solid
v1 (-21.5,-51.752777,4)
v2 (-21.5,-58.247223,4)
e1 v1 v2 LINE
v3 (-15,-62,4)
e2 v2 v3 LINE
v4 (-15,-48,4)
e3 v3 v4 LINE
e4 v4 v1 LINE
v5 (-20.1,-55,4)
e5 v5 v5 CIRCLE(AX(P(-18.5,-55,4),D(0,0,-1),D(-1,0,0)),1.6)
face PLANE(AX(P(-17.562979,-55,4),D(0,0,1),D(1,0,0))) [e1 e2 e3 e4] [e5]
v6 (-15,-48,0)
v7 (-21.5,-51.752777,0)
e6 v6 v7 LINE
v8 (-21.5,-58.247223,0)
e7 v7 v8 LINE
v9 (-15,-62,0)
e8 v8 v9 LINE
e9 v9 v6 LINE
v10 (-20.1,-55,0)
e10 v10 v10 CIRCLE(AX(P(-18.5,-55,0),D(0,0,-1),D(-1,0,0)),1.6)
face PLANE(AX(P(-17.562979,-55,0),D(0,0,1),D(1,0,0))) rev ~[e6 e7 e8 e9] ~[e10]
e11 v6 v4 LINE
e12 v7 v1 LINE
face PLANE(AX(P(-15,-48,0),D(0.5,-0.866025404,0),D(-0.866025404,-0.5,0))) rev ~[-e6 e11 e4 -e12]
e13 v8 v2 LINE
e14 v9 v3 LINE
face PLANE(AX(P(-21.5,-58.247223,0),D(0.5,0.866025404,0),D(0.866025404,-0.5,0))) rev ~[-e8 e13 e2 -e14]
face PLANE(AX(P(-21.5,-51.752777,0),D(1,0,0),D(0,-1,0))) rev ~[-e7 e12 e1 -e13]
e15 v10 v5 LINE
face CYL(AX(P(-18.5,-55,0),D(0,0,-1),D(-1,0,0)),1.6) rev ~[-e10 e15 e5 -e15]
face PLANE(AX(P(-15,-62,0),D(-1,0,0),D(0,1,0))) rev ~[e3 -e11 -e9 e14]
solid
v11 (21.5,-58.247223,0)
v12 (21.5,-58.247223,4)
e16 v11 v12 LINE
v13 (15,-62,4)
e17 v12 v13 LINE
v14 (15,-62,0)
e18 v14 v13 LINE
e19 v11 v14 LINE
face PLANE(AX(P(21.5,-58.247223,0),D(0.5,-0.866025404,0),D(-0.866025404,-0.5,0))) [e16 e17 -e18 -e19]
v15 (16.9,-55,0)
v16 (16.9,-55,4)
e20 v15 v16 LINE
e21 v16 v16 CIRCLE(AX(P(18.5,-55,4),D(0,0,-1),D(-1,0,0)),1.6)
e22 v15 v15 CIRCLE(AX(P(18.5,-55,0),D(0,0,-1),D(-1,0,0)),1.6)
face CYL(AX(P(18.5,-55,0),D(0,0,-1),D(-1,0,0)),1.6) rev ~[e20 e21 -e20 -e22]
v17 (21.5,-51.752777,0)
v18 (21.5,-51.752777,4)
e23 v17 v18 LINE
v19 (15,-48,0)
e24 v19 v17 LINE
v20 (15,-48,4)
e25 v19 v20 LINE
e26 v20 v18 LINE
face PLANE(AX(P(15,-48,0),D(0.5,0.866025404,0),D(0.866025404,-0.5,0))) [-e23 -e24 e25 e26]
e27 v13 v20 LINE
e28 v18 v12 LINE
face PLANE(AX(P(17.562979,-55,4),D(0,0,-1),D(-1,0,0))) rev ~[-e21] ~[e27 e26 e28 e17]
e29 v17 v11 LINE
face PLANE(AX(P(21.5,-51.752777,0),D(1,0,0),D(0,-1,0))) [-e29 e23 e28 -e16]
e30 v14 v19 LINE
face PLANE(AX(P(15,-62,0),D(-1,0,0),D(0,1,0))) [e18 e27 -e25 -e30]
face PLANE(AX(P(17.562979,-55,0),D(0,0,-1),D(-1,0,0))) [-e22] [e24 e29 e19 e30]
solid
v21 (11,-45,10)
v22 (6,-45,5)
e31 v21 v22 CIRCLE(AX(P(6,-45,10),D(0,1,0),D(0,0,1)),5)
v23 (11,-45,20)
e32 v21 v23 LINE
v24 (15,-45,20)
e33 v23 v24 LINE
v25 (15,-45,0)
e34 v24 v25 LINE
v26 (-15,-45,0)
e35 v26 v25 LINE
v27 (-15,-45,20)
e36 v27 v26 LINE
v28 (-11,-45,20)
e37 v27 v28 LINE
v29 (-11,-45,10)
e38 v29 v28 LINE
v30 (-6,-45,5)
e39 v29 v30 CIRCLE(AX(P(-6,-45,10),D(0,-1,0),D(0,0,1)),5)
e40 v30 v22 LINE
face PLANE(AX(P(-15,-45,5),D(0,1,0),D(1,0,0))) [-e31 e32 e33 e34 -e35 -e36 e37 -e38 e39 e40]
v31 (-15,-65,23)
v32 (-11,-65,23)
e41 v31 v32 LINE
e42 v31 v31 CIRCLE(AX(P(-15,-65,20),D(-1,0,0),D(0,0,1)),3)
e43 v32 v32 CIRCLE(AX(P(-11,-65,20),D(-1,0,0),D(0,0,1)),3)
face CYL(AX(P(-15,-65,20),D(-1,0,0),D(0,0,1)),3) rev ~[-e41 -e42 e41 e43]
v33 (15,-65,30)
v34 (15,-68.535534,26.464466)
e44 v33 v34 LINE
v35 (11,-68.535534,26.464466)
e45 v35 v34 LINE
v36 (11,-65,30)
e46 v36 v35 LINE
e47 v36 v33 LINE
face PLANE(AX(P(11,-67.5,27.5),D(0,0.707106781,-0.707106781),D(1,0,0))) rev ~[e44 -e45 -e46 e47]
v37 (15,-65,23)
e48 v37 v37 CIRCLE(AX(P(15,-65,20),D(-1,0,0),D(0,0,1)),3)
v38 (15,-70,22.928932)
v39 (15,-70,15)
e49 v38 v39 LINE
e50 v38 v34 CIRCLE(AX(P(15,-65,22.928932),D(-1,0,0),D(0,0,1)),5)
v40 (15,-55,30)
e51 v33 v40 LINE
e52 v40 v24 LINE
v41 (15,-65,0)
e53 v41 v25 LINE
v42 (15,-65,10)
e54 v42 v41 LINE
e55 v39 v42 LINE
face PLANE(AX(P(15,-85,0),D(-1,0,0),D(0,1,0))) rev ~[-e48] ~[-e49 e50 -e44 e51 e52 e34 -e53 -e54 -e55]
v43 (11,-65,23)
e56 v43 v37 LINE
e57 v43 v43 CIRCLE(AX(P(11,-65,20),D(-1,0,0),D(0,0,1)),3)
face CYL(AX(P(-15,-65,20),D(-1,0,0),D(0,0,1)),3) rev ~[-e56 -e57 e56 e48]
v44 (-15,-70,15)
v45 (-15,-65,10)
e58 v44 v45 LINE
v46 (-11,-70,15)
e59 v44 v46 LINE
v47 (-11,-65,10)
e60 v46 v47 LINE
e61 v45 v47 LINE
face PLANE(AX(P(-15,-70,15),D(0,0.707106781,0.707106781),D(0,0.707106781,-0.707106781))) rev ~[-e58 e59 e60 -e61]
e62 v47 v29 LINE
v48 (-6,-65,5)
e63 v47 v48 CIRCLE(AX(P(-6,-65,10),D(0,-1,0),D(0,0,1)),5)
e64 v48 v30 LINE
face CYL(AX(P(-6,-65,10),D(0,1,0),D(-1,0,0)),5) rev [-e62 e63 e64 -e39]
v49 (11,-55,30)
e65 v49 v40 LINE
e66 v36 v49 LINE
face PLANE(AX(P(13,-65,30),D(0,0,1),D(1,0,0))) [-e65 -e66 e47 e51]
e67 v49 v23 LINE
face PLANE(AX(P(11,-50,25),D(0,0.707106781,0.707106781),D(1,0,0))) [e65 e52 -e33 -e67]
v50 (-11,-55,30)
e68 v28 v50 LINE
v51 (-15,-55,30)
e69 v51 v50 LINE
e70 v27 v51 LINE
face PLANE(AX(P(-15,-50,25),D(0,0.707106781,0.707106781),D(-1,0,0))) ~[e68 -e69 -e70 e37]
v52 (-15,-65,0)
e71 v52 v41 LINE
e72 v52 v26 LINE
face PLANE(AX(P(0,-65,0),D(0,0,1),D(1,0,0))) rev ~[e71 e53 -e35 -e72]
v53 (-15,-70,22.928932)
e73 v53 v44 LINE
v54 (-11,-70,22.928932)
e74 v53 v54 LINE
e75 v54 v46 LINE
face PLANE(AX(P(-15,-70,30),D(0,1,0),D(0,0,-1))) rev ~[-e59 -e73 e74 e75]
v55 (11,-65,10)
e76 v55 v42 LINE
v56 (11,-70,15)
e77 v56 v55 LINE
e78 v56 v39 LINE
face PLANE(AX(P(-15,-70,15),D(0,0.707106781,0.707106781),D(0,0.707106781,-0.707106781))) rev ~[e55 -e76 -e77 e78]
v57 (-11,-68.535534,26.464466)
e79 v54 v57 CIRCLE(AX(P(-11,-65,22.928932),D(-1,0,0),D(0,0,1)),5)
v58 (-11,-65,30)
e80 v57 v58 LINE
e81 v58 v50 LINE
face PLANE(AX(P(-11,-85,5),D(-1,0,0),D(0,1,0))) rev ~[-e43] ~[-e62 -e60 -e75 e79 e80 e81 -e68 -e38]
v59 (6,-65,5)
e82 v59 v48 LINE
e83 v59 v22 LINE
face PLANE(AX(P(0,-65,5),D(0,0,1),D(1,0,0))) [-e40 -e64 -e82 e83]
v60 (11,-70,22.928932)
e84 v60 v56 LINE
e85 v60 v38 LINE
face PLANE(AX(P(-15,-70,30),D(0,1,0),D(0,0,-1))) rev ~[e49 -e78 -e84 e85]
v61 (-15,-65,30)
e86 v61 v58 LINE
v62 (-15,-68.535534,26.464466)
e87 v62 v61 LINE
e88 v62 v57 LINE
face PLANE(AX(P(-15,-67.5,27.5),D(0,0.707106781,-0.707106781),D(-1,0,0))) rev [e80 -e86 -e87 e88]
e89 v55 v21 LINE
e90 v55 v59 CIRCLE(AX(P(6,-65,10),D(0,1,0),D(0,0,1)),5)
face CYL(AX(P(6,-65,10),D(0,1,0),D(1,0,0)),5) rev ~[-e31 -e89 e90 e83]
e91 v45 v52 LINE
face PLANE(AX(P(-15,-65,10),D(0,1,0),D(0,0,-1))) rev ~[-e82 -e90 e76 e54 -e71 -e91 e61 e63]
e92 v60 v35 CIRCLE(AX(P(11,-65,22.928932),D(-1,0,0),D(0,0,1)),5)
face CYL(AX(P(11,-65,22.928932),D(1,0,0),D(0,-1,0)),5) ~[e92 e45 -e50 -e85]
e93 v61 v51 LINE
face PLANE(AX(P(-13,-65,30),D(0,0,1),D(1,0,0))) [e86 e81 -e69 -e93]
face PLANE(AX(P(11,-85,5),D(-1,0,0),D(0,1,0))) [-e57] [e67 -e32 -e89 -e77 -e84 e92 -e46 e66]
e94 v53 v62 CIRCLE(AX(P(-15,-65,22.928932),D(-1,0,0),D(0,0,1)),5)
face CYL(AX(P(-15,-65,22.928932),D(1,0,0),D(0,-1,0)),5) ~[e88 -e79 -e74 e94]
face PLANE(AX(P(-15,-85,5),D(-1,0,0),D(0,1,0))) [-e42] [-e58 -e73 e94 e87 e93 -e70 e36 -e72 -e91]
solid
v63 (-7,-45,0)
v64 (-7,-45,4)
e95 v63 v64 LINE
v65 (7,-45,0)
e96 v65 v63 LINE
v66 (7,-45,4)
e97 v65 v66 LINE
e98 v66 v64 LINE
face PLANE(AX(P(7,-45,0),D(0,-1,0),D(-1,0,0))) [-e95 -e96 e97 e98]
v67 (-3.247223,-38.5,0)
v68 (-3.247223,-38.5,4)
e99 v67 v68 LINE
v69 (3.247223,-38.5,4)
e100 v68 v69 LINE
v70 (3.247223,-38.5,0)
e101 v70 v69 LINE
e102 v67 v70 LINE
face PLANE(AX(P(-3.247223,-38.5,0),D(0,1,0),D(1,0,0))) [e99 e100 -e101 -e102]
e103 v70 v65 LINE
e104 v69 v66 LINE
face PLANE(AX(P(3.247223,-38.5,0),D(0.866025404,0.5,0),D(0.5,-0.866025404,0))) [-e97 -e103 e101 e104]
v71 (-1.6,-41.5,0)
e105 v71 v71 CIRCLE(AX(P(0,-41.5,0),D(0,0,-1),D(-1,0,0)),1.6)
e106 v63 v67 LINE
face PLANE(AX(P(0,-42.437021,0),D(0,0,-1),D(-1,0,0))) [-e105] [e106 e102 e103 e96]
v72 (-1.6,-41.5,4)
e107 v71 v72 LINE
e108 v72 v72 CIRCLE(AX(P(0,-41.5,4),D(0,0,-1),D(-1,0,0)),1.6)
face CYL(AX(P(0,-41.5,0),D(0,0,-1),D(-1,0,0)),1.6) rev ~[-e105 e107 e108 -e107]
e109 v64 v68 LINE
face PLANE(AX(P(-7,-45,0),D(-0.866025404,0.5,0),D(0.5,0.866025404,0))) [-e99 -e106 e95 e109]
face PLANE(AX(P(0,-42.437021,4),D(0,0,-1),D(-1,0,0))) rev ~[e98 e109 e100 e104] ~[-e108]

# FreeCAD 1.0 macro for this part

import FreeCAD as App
import Part
import Sketcher
from FreeCAD import Vector
Q = App.Units.Quantity


def edges_at(feature, points):
    """Names of the edges that pass closest to the given points."""
    edges = feature.Shape.Edges
    near = lambda p: min(range(len(edges)), key=lambda i: edges[i].distToShape(Part.Vertex(*p))[0])
    return sorted({f"Edge{near(p) + 1}" for p in points})


def add_polygon(sketch, points):
    """Adds a closed chain of lines whose ends are joined by coincident constraints."""
    first, n = sketch.GeometryCount, len(points)
    for a, b in zip(points, points[1:] + points[:1]):
        sketch.addGeometry(Part.LineSegment(App.Vector(*a, 0), App.Vector(*b, 0)), False)
    for i in range(n):
        sketch.addConstraint(Sketcher.Constraint("Coincident", first + i, 2, first + (i + 1) % n, 1))

doc = App.newDocument("Part")
params = doc.addObject("Spreadsheet::Sheet", "Params")
for row, (alias, value) in enumerate([
    ("sketch1_width", "30 mm"),
    ("sketch1_height", "40 mm"),
    ("pad1_length", "5 mm"),
    ("sketch2_width", "4 mm"),
    ("sketch2_height", "40 mm"),
    ("pad2_length", "25 mm"),
    ("chamfer_size", "10 mm"),
    ("sketch3_diameter", "6 mm"),
    ("pocket1_length", "76 mm"),
    ("sketch4_height", "15 mm"),
    ("sketch4_height2", "10 mm"),
    ("pocket2_length", "76 mm"),
    ("chamfer2_size", "5 mm"),
    ("fillet_radius", "5 mm"),
    ("fillet2_radius", "5 mm"),
    ("sketch5_diameter", "3.2 mm"),
    ("sketch5_width", "14 mm"),
    ("pad3_length", "4 mm"),
    ("sketch6_diameter", "3.2 mm"),
    ("sketch6_height", "14 mm"),
    ("pad4_length", "4 mm"),
    ("sketch7_diameter", "3.2 mm"),
    ("sketch7_height", "14 mm"),
    ("pad5_length", "4 mm"),
], start=1):
    params.set(f"A{row}", alias)
    params.set(f"B{row}", "=" + value)
    params.setAlias(f"B{row}", alias)

body = doc.addObject("PartDesign::Body", "Body")

# Sketch on XY plane
sketch1 = body.newObject("Sketcher::SketchObject", "Sketch")
sketch1.AttachmentSupport = (doc.getObject("XY_Plane"), [""])
sketch1.MapMode = "FlatFace"
add_polygon(sketch1, [(-15, -45), (-15, -85), (15, -85), (15, -45)])  # lines 0-3
sketch1.addConstraint([
    Sketcher.Constraint("Vertical", 0),
    Sketcher.Constraint("Horizontal", 1),
    Sketcher.Constraint("Vertical", 2),
    Sketcher.Constraint("Horizontal", 3),
    Sketcher.Constraint("DistanceX", 1, 1, 1, 2, Q("30 mm")),
    Sketcher.Constraint("DistanceY", 0, 2, 0, 1, Q("40 mm")),
    Sketcher.Constraint("DistanceX", 0, 2, -1, 1, Q("15 mm")),
    Sketcher.Constraint("DistanceY", 0, 2, -1, 1, Q("85 mm")),
])
sketch1.setExpression("Constraints[8]", "Params.sketch1_width")
sketch1.setExpression("Constraints[9]", "Params.sketch1_height")
pad1 = body.newObject("PartDesign::Pad", "Pad")
pad1.Profile = sketch1
pad1.setExpression("Length", "Params.pad1_length")

# Sketch on XY plane
sketch2 = body.newObject("Sketcher::SketchObject", "Sketch001")
sketch2.AttachmentSupport = (doc.getObject("XY_Plane"), [""])
sketch2.MapMode = "FlatFace"
sketch2.AttachmentOffset = App.Placement(Vector(0, 0, 5), App.Rotation())
add_polygon(sketch2, [(-15, -45), (-15, -85), (-11, -85), (-11, -45)])  # lines 0-3
add_polygon(sketch2, [(11, -45), (11, -85), (15, -85), (15, -45)])  # lines 4-7
sketch2.addConstraint([
    Sketcher.Constraint("Vertical", 0),
    Sketcher.Constraint("Horizontal", 1),
    Sketcher.Constraint("Vertical", 2),
    Sketcher.Constraint("Horizontal", 3),
    Sketcher.Constraint("Vertical", 4),
    Sketcher.Constraint("Horizontal", 5),
    Sketcher.Constraint("Vertical", 6),
    Sketcher.Constraint("Horizontal", 7),
    Sketcher.Constraint("Symmetric", 1, 2, 4, 2, -2),
    Sketcher.Constraint("Symmetric", 3, 2, 6, 2, -2),
    Sketcher.Constraint("DistanceX", 1, 1, 1, 2, Q("4 mm")),
    Sketcher.Constraint("DistanceY", 0, 2, 0, 1, Q("40 mm")),
    Sketcher.Constraint("DistanceX", 0, 2, -1, 1, Q("15 mm")),
    Sketcher.Constraint("DistanceY", 0, 2, -1, 1, Q("85 mm")),
])
sketch2.setExpression("Constraints[18]", "Params.sketch2_width")
sketch2.setExpression("Constraints[19]", "Params.sketch2_height")
pad2 = body.newObject("PartDesign::Pad", "Pad001")
pad2.Profile = sketch2
pad2.setExpression("Length", "Params.pad2_length")
doc.recompute()

chamfer = body.newObject("PartDesign::Chamfer", "Chamfer")
chamfer.Base = (pad2, edges_at(pad2, [
    (-13, -85, 30),
    (-13, -45, 30),
    (13, -45, 30),
    (13, -85, 30),
]))
chamfer.setExpression("Size", "Params.chamfer_size")

# Sketch on YZ plane
sketch3 = body.newObject("Sketcher::SketchObject", "Sketch002")
sketch3.AttachmentSupport = (doc.getObject("YZ_Plane"), [""])
sketch3.MapMode = "FlatFace"
sketch3.AttachmentOffset = App.Placement(Vector(0, 0, -15), App.Rotation())
sketch3.addGeometry(Part.Circle(Vector(-65, 20, 0), Vector(0, 0, 1), 3), False)
sketch3.addConstraint([
    Sketcher.Constraint("Diameter", 0, Q("6 mm")),
    Sketcher.Constraint("DistanceX", 0, 3, -1, 1, Q("65 mm")),
    Sketcher.Constraint("DistanceY", -1, 1, 0, 3, Q("20 mm")),
])
sketch3.setExpression("Constraints[0]", "Params.sketch3_diameter")
pocket1 = body.newObject("PartDesign::Pocket", "Pocket")
pocket1.Profile = sketch3
pocket1.setExpression("Length", "Params.pocket1_length")
pocket1.Reversed = True

# Sketch on YZ plane
sketch4 = body.newObject("Sketcher::SketchObject", "Sketch003")
sketch4.AttachmentSupport = (doc.getObject("YZ_Plane"), [""])
sketch4.MapMode = "FlatFace"
sketch4.AttachmentOffset = App.Placement(Vector(0, 0, -15), App.Rotation())
add_polygon(sketch4, [(-70, 30), (-70, 15), (-65, 10), (-65, 0), (-90, -5), (-87, 31)])  # lines 0-5
sketch4.addConstraint([
    Sketcher.Constraint("Vertical", 0),
    Sketcher.Constraint("Vertical", 2),
    Sketcher.Constraint("PointOnObject", 2, 2, -1),
    Sketcher.Constraint("Perpendicular", 4, 5),
    Sketcher.Constraint("DistanceY", 0, 2, 0, 1, Q("15 mm")),
    Sketcher.Constraint("DistanceY", 2, 2, 2, 1, Q("10 mm")),
    Sketcher.Constraint("Angle", 1, Q("-45 deg")),
    Sketcher.Constraint("DistanceX", 0, 2, -1, 1, Q("70 mm")),
    Sketcher.Constraint("DistanceY", -1, 1, 0, 2, Q("15 mm")),
    Sketcher.Constraint("DistanceX", 3, 2, 4, 2, Q("2.549801 mm")),
    Sketcher.Constraint("Distance", 4, Q("36.213981 mm")),
    Sketcher.Constraint("DistanceY", -1, 1, 4, 2, Q("31.217939 mm")),
])
sketch4.setExpression("Constraints[10]", "Params.sketch4_height")
sketch4.setExpression("Constraints[11]", "Params.sketch4_height2")
pocket2 = body.newObject("PartDesign::Pocket", "Pocket001")
pocket2.Profile = sketch4
pocket2.setExpression("Length", "Params.pocket2_length")
pocket2.Reversed = True
doc.recompute()

chamfer2 = body.newObject("PartDesign::Chamfer", "Chamfer001")
chamfer2.Base = (pocket2, edges_at(pocket2, [(13, -70, 30), (-13, -70, 30)]))
chamfer2.setExpression("Size", "Params.chamfer2_size")
doc.recompute()

fillet = body.newObject("PartDesign::Fillet", "Fillet")
fillet.Base = (chamfer2, edges_at(chamfer2, [(11, -55, 5), (-11, -55, 5)]))
fillet.setExpression("Radius", "Params.fillet_radius")
doc.recompute()

fillet2 = body.newObject("PartDesign::Fillet", "Fillet001")
fillet2.Base = (fillet, edges_at(fillet, [(-13, -70, 25), (13, -70, 25)]))
fillet2.setExpression("Radius", "Params.fillet2_radius")
body2 = doc.addObject("PartDesign::Body", "Body001")

# Sketch on XY plane
sketch5 = body2.newObject("Sketcher::SketchObject", "Sketch004")
sketch5.AttachmentSupport = (doc.getObject("XY_Plane001"), [""])
sketch5.MapMode = "FlatFace"
add_polygon(sketch5, [(-7, -45), (-3.2, -38.5), (3.2, -38.5), (7, -45)])  # lines 0-3
sketch5.addGeometry(Part.Circle(Vector(0, -41.5, 0), Vector(0, 0, 1), 1.6), False)  # 4
sketch5.addConstraint([
    Sketcher.Constraint("Horizontal", 1),
    Sketcher.Constraint("Horizontal", 3),
    Sketcher.Constraint("PointOnObject", 4, 3, -2),
    Sketcher.Constraint("Equal", 0, 2),
    Sketcher.Constraint("Diameter", 4, Q("3.2 mm")),
    Sketcher.Constraint("DistanceX", 3, 2, 3, 1, Q("14 mm")),
    Sketcher.Constraint("Angle", 0, Q("60 deg")),
    Sketcher.Constraint("DistanceX", -1, 1, 2, 2, Q("7 mm")),
    Sketcher.Constraint("DistanceY", 2, 2, -1, 1, Q("45 mm")),
    Sketcher.Constraint("DistanceY", 4, 3, 0, 2, Q("3 mm")),
    Sketcher.Constraint("DistanceY", 4, 3, -1, 1, Q("41.5 mm")),
])
sketch5.setExpression("Constraints[8]", "Params.sketch5_diameter")
sketch5.setExpression("Constraints[9]", "Params.sketch5_width")
pad3 = body2.newObject("PartDesign::Pad", "Pad002")
pad3.Profile = sketch5
pad3.setExpression("Length", "Params.pad3_length")
body3 = doc.addObject("PartDesign::Body", "Body002")

# Sketch on XY plane
sketch6 = body3.newObject("Sketcher::SketchObject", "Sketch005")
sketch6.AttachmentSupport = (doc.getObject("XY_Plane002"), [""])
sketch6.MapMode = "FlatFace"
add_polygon(sketch6, [(-21.5, -51.8), (-15, -48), (-15, -62), (-21.5, -58.2)])  # lines 0-3
sketch6.addGeometry(Part.Circle(Vector(-18.5, -55, 0), Vector(0, 0, 1), 1.6), False)  # 4
sketch6.addConstraint([
    Sketcher.Constraint("Vertical", 1),
    Sketcher.Constraint("Vertical", 3),
    Sketcher.Constraint("Equal", 0, 2),
    Sketcher.Constraint("Diameter", 4, Q("3.2 mm")),
    Sketcher.Constraint("DistanceY", 1, 2, 1, 1, Q("14 mm")),
    Sketcher.Constraint("Angle", 0, Q("30 deg")),
    Sketcher.Constraint("DistanceY", 4, 3, -1, 1, Q("55 mm")),
    Sketcher.Constraint("DistanceX", 0, 2, -1, 1, Q("15 mm")),
    Sketcher.Constraint("DistanceY", 0, 2, -1, 1, Q("48 mm")),
    Sketcher.Constraint("DistanceX", 2, 2, 4, 3, Q("3 mm")),
    Sketcher.Constraint("DistanceX", 4, 3, -1, 1, Q("18.5 mm")),
])
sketch6.setExpression("Constraints[7]", "Params.sketch6_diameter")
sketch6.setExpression("Constraints[8]", "Params.sketch6_height")
pad4 = body3.newObject("PartDesign::Pad", "Pad003")
pad4.Profile = sketch6
pad4.setExpression("Length", "Params.pad4_length")
body4 = doc.addObject("PartDesign::Body", "Body003")

# Sketch on XY plane
sketch7 = body4.newObject("Sketcher::SketchObject", "Sketch006")
sketch7.AttachmentSupport = (doc.getObject("XY_Plane003"), [""])
sketch7.MapMode = "FlatFace"
add_polygon(sketch7, [(15, -62), (15, -48), (21.5, -51.8), (21.5, -58.2)])  # lines 0-3
sketch7.addGeometry(Part.Circle(Vector(18.5, -55, 0), Vector(0, 0, 1), 1.6), False)  # 4
sketch7.addConstraint([
    Sketcher.Constraint("Vertical", 0),
    Sketcher.Constraint("Vertical", 2),
    Sketcher.Constraint("Equal", 1, 3),
    Sketcher.Constraint("Diameter", 4, Q("3.2 mm")),
    Sketcher.Constraint("DistanceY", 0, 1, 0, 2, Q("14 mm")),
    Sketcher.Constraint("Angle", 1, Q("-30 deg")),
    Sketcher.Constraint("DistanceY", 4, 3, -1, 1, Q("55 mm")),
    Sketcher.Constraint("DistanceX", -1, 1, 0, 2, Q("15 mm")),
    Sketcher.Constraint("DistanceY", 0, 2, -1, 1, Q("48 mm")),
    Sketcher.Constraint("DistanceX", 4, 3, 1, 2, Q("3 mm")),
    Sketcher.Constraint("DistanceX", -1, 1, 4, 3, Q("18.5 mm")),
])
sketch7.setExpression("Constraints[7]", "Params.sketch7_diameter")
sketch7.setExpression("Constraints[8]", "Params.sketch7_height")
pad5 = body4.newObject("PartDesign::Pad", "Pad004")
pad5.Profile = sketch7
pad5.setExpression("Length", "Params.pad5_length")

doc.recompute()
